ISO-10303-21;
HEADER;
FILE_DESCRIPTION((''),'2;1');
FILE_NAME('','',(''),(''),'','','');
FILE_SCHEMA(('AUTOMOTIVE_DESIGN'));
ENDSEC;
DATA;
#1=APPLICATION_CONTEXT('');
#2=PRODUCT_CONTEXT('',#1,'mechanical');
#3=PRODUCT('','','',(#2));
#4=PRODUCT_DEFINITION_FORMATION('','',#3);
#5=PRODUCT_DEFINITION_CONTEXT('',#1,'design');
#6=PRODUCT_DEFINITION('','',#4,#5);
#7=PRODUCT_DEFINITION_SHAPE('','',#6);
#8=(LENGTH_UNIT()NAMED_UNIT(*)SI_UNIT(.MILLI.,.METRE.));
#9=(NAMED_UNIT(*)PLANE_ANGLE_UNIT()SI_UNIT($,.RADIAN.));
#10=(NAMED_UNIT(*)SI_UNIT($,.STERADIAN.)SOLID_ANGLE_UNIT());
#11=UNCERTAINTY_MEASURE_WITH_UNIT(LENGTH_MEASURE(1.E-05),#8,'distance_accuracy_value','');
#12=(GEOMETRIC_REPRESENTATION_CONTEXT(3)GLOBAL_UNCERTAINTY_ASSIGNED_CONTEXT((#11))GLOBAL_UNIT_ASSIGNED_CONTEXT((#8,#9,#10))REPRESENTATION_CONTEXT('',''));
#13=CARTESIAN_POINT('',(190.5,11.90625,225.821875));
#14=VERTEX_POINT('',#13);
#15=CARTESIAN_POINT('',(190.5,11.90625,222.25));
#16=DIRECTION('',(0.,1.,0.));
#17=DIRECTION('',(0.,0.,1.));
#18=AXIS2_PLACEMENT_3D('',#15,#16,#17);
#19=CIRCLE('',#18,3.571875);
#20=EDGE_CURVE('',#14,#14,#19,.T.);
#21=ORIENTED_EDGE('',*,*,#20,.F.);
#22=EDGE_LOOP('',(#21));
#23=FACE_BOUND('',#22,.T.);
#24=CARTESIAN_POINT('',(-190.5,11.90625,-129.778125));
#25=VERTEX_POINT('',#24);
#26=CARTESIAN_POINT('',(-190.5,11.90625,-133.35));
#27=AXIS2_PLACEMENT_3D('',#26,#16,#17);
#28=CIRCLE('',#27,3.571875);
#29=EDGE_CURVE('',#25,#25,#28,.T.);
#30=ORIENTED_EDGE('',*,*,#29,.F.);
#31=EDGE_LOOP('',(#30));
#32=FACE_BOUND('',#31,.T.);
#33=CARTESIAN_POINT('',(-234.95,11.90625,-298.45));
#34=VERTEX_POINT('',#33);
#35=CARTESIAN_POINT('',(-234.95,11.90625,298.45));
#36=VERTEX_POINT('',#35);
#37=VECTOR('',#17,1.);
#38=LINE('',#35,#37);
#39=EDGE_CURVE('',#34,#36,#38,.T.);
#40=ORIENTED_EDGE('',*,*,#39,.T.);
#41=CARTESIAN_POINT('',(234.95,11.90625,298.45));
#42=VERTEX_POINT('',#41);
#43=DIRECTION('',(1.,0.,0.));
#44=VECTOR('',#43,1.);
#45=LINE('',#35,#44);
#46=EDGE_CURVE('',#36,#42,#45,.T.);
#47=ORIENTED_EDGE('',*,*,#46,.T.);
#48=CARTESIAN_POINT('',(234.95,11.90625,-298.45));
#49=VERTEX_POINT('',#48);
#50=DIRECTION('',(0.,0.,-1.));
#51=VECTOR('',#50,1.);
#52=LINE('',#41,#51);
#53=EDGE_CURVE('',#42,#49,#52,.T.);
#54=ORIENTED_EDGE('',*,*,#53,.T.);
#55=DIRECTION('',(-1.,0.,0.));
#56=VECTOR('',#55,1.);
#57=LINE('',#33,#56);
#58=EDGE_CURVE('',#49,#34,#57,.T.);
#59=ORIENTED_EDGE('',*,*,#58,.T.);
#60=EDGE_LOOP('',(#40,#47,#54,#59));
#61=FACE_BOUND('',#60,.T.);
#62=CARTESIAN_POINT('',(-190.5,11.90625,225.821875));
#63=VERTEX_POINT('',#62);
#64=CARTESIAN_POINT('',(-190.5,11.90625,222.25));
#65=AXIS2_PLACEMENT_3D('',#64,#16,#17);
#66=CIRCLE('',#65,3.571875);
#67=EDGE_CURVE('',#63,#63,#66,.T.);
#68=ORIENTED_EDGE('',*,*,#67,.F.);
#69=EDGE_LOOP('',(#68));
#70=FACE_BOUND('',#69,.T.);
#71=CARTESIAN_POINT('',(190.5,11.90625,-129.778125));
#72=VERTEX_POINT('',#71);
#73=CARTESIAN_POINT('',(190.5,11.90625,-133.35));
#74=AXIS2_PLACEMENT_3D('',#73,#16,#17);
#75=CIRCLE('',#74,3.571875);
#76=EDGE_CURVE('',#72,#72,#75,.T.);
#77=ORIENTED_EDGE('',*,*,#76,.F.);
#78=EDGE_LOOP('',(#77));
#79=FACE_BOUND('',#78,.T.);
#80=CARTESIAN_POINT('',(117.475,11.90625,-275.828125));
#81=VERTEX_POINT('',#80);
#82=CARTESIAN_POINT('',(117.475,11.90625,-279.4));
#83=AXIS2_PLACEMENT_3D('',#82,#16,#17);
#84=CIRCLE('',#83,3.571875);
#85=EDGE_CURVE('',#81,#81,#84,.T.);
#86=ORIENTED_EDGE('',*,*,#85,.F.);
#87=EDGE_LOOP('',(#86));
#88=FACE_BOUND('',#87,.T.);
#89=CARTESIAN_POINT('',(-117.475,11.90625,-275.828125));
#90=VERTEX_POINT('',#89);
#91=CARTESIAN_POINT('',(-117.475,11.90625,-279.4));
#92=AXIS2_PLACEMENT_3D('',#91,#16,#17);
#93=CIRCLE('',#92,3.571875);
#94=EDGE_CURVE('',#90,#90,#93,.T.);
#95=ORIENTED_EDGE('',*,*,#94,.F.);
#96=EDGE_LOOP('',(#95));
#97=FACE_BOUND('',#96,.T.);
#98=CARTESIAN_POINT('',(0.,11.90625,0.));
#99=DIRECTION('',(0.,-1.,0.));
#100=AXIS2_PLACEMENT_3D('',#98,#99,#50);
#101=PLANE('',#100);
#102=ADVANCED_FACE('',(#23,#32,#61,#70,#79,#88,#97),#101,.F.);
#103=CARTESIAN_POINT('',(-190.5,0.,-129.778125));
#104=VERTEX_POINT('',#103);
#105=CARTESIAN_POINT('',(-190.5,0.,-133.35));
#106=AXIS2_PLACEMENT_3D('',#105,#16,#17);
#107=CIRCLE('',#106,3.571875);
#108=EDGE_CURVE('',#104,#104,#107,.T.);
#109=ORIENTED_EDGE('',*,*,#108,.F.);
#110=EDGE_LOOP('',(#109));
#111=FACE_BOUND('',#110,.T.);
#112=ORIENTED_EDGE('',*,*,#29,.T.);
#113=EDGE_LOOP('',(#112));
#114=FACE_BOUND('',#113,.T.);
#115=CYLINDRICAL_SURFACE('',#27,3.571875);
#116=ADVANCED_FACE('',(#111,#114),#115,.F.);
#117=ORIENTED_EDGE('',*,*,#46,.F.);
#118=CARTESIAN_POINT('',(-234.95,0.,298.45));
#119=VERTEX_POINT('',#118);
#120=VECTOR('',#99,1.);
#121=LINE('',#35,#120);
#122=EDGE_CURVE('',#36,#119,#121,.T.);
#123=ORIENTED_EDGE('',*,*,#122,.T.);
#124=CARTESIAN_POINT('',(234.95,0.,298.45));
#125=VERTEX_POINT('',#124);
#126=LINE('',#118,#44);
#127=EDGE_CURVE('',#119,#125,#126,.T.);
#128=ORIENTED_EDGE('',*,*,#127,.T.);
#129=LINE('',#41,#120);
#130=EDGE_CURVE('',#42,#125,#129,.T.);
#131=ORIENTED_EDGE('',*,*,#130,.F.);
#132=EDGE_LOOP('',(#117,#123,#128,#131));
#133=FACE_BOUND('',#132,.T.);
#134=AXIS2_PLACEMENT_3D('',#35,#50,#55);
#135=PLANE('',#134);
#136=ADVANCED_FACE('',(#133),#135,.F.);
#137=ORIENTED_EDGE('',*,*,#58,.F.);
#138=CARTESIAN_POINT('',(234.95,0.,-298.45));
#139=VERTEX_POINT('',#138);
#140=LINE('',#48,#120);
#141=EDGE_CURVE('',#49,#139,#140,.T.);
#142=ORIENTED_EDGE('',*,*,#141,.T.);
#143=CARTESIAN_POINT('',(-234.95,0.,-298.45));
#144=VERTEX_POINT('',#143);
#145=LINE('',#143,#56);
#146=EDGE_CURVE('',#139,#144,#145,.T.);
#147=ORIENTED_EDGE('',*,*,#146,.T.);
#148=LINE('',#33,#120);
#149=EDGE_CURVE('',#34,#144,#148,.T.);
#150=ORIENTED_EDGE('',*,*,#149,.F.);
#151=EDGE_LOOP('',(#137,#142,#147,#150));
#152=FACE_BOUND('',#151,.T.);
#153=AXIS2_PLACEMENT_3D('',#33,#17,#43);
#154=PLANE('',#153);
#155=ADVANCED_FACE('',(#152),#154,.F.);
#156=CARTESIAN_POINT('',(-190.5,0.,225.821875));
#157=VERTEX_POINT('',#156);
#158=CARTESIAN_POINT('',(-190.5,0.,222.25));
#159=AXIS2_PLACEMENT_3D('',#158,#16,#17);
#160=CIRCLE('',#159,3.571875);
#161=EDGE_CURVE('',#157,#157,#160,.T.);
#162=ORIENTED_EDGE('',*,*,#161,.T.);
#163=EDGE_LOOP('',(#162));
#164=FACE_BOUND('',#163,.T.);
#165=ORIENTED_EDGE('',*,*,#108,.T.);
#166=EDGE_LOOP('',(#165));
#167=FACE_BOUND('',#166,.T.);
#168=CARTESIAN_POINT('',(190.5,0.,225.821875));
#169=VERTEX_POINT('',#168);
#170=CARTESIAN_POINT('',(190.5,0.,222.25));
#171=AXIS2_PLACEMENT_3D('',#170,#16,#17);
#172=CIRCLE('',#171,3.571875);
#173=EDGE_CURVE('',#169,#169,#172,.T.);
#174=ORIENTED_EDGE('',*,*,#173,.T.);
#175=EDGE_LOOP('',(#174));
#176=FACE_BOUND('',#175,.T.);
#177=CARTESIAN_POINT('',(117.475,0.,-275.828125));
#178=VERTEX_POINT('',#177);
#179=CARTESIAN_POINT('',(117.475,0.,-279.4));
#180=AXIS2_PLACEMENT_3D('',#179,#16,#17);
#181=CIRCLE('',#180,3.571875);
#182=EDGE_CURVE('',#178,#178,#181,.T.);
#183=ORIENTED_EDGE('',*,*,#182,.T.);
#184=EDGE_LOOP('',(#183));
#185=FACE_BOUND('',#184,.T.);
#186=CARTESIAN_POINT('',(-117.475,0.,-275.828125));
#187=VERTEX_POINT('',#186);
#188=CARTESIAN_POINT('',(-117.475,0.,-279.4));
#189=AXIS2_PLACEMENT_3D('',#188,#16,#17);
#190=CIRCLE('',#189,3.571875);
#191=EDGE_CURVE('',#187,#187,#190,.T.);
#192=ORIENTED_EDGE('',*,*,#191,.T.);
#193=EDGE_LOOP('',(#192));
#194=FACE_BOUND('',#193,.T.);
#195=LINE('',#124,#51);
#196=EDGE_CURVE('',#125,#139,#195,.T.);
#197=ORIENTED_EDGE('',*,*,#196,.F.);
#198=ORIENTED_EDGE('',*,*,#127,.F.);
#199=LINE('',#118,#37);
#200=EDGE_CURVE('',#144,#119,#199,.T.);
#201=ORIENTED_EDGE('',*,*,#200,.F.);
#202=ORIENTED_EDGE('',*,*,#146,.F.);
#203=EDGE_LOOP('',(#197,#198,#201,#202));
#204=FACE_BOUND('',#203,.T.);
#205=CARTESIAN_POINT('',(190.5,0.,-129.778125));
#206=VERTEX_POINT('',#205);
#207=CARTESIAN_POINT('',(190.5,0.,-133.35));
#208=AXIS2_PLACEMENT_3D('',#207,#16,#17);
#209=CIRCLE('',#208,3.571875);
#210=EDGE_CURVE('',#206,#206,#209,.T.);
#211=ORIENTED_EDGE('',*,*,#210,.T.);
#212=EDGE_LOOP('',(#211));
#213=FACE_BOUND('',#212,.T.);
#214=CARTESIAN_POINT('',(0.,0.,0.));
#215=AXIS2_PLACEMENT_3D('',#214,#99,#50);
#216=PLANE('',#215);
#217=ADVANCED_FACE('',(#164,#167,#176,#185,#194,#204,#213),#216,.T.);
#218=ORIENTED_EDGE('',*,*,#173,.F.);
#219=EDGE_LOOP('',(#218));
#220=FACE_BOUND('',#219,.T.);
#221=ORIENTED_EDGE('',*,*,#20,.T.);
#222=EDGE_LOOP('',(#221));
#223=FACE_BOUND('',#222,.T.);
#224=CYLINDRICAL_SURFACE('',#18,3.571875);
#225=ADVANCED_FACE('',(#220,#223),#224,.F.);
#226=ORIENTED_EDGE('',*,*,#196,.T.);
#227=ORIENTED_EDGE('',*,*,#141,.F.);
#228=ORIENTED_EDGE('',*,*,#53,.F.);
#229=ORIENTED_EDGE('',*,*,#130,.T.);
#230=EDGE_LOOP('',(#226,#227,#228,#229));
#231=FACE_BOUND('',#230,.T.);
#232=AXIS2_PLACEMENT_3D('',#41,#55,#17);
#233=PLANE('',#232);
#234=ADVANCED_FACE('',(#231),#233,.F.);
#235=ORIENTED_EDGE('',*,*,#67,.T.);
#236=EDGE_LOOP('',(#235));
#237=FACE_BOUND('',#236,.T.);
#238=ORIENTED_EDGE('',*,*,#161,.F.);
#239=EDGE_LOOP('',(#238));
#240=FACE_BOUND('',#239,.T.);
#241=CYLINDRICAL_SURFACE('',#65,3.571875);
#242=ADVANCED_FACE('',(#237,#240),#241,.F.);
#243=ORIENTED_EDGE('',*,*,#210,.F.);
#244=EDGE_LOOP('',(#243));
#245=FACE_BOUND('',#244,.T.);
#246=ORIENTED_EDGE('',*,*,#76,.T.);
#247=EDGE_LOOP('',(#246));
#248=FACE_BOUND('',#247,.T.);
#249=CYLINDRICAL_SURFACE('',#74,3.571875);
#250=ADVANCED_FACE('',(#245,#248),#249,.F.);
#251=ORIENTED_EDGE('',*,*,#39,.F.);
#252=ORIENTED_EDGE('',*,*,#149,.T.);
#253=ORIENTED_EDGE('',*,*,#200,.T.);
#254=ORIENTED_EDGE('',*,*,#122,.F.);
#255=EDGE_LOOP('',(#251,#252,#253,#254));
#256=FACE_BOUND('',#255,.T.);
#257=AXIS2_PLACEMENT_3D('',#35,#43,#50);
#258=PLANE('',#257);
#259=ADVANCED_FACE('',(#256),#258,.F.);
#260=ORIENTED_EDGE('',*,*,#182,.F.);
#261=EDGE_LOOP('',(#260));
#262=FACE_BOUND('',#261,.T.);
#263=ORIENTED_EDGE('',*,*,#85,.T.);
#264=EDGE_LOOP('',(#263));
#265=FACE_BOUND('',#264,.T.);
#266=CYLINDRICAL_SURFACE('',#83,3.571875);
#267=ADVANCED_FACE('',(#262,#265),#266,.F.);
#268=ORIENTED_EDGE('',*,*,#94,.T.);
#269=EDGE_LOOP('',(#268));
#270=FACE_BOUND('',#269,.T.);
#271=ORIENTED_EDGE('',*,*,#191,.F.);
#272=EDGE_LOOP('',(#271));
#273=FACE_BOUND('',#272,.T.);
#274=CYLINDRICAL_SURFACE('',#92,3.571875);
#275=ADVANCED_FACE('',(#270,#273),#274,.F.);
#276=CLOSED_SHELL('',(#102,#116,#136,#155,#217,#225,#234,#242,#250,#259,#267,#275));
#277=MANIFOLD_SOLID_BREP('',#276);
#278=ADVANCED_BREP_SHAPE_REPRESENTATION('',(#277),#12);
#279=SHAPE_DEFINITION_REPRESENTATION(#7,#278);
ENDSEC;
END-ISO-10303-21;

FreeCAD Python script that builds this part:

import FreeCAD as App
import Part
import Sketcher
Q = App.Units.Quantity

doc = App.newDocument("Part")
body = doc.addObject("PartDesign::Body", "Body")

sketch1 = body.newObject("Sketcher::SketchObject", "Sketch")
sketch1.AttachmentSupport = (doc.getObject("XZ_Plane"), [""])
sketch1.MapMode = "FlatFace"
sketch1.addGeometry(Part.LineSegment(App.Vector(-235, -298, 0), App.Vector(-235, 298, 0)), False)
sketch1.addGeometry(Part.LineSegment(App.Vector(-235, 298, 0), App.Vector(235, 298, 0)), False)
sketch1.addGeometry(Part.LineSegment(App.Vector(235, 298, 0), App.Vector(235, -298, 0)), False)
sketch1.addGeometry(Part.LineSegment(App.Vector(235, -298, 0), App.Vector(-235, -298, 0)), False)
sketch1.addConstraint(Sketcher.Constraint("Coincident", 0, 2, 1, 1))
sketch1.addConstraint(Sketcher.Constraint("Coincident", 1, 2, 2, 1))
sketch1.addConstraint(Sketcher.Constraint("Coincident", 2, 2, 3, 1))
sketch1.addConstraint(Sketcher.Constraint("Coincident", 3, 2, 0, 1))
sketch1.addConstraint(Sketcher.Constraint("Vertical", 0))
sketch1.addConstraint(Sketcher.Constraint("Horizontal", 1))
sketch1.addConstraint(Sketcher.Constraint("Vertical", 2))
sketch1.addConstraint(Sketcher.Constraint("Horizontal", 3))
sketch1.addConstraint(Sketcher.Constraint("Symmetric", 0, 2, 2, 2, -1, 1))
sketch1.addConstraint(Sketcher.Constraint("DistanceX", 1, 1, 1, 2, Q("18.5 in")))
sketch1.addConstraint(Sketcher.Constraint("DistanceY", 0, 1, 0, 2, Q("23.5 in")))
pad1 = body.newObject("PartDesign::Pad", "Pad")
pad1.Profile = sketch1
pad1.Length = Q("0.46875 in")
pad1.Reversed = True

sketch2 = body.newObject("Sketcher::SketchObject", "Sketch001")
sketch2.AttachmentSupport = (doc.getObject("XZ_Plane"), [""])
sketch2.MapMode = "FlatFace"
sketch2.AttachmentOffset = App.Placement(App.Vector(0, 0, -0.46875 * 25.4), App.Rotation())
sketch2.addGeometry(Part.Circle(App.Vector(-190.5, -133.3, 0), App.Vector(0, 0, 1), 3.6), False)
sketch2.addGeometry(Part.Circle(App.Vector(190.5, -133.3, 0), App.Vector(0, 0, 1), 3.6), False)
sketch2.addGeometry(Part.Circle(App.Vector(190.5, 222.2, 0), App.Vector(0, 0, 1), 3.6), False)
sketch2.addGeometry(Part.Circle(App.Vector(-190.5, 222.2, 0), App.Vector(0, 0, 1), 3.6), False)
sketch2.addGeometry(Part.Circle(App.Vector(-117.5, -279.4, 0), App.Vector(0, 0, 1), 3.6), False)
sketch2.addGeometry(Part.Circle(App.Vector(117.5, -279.4, 0), App.Vector(0, 0, 1), 3.6), False)
sketch2.addConstraint(Sketcher.Constraint("Equal", 0, 1))
sketch2.addConstraint(Sketcher.Constraint("Equal", 1, 2))
sketch2.addConstraint(Sketcher.Constraint("Equal", 2, 3))
sketch2.addConstraint(Sketcher.Constraint("Equal", 3, 4))
sketch2.addConstraint(Sketcher.Constraint("Equal", 4, 5))
sketch2.addConstraint(Sketcher.Constraint("Symmetric", 0, 3, 1, 3, -2))
sketch2.addConstraint(Sketcher.Constraint("Symmetric", 2, 3, 3, 3, -2))
sketch2.addConstraint(Sketcher.Constraint("Symmetric", 4, 3, 5, 3, -2))
sketch2.addConstraint(Sketcher.Constraint("Vertical", 1, 3, 2, 3))
sketch2.addConstraint(Sketcher.Constraint("Diameter", 0, Q("0.28125 in")))
sketch2.addConstraint(Sketcher.Constraint("DistanceY", 4, 3, -1, 1, Q("11 in")))
sketch2.addConstraint(Sketcher.Constraint("DistanceX", 0, 3, 1, 3, Q("15 in")))
sketch2.addConstraint(Sketcher.Constraint("DistanceY", 1, 3, 2, 3, Q("14 in")))
sketch2.addConstraint(Sketcher.Constraint("DistanceY", 0, 3, -1, 1, Q("5.25 in")))
sketch2.addConstraint(Sketcher.Constraint("DistanceX", 4, 3, 5, 3, Q("9.25 in")))
doc.recompute()
hole = body.newObject("PartDesign::Hole", "Hole")
hole.Profile = sketch2
hole.ThreadType = "None"
hole.Diameter = Q("0.28125 in")
hole.DepthType = "ThroughAll"
hole.Reversed = True

doc.recompute()
